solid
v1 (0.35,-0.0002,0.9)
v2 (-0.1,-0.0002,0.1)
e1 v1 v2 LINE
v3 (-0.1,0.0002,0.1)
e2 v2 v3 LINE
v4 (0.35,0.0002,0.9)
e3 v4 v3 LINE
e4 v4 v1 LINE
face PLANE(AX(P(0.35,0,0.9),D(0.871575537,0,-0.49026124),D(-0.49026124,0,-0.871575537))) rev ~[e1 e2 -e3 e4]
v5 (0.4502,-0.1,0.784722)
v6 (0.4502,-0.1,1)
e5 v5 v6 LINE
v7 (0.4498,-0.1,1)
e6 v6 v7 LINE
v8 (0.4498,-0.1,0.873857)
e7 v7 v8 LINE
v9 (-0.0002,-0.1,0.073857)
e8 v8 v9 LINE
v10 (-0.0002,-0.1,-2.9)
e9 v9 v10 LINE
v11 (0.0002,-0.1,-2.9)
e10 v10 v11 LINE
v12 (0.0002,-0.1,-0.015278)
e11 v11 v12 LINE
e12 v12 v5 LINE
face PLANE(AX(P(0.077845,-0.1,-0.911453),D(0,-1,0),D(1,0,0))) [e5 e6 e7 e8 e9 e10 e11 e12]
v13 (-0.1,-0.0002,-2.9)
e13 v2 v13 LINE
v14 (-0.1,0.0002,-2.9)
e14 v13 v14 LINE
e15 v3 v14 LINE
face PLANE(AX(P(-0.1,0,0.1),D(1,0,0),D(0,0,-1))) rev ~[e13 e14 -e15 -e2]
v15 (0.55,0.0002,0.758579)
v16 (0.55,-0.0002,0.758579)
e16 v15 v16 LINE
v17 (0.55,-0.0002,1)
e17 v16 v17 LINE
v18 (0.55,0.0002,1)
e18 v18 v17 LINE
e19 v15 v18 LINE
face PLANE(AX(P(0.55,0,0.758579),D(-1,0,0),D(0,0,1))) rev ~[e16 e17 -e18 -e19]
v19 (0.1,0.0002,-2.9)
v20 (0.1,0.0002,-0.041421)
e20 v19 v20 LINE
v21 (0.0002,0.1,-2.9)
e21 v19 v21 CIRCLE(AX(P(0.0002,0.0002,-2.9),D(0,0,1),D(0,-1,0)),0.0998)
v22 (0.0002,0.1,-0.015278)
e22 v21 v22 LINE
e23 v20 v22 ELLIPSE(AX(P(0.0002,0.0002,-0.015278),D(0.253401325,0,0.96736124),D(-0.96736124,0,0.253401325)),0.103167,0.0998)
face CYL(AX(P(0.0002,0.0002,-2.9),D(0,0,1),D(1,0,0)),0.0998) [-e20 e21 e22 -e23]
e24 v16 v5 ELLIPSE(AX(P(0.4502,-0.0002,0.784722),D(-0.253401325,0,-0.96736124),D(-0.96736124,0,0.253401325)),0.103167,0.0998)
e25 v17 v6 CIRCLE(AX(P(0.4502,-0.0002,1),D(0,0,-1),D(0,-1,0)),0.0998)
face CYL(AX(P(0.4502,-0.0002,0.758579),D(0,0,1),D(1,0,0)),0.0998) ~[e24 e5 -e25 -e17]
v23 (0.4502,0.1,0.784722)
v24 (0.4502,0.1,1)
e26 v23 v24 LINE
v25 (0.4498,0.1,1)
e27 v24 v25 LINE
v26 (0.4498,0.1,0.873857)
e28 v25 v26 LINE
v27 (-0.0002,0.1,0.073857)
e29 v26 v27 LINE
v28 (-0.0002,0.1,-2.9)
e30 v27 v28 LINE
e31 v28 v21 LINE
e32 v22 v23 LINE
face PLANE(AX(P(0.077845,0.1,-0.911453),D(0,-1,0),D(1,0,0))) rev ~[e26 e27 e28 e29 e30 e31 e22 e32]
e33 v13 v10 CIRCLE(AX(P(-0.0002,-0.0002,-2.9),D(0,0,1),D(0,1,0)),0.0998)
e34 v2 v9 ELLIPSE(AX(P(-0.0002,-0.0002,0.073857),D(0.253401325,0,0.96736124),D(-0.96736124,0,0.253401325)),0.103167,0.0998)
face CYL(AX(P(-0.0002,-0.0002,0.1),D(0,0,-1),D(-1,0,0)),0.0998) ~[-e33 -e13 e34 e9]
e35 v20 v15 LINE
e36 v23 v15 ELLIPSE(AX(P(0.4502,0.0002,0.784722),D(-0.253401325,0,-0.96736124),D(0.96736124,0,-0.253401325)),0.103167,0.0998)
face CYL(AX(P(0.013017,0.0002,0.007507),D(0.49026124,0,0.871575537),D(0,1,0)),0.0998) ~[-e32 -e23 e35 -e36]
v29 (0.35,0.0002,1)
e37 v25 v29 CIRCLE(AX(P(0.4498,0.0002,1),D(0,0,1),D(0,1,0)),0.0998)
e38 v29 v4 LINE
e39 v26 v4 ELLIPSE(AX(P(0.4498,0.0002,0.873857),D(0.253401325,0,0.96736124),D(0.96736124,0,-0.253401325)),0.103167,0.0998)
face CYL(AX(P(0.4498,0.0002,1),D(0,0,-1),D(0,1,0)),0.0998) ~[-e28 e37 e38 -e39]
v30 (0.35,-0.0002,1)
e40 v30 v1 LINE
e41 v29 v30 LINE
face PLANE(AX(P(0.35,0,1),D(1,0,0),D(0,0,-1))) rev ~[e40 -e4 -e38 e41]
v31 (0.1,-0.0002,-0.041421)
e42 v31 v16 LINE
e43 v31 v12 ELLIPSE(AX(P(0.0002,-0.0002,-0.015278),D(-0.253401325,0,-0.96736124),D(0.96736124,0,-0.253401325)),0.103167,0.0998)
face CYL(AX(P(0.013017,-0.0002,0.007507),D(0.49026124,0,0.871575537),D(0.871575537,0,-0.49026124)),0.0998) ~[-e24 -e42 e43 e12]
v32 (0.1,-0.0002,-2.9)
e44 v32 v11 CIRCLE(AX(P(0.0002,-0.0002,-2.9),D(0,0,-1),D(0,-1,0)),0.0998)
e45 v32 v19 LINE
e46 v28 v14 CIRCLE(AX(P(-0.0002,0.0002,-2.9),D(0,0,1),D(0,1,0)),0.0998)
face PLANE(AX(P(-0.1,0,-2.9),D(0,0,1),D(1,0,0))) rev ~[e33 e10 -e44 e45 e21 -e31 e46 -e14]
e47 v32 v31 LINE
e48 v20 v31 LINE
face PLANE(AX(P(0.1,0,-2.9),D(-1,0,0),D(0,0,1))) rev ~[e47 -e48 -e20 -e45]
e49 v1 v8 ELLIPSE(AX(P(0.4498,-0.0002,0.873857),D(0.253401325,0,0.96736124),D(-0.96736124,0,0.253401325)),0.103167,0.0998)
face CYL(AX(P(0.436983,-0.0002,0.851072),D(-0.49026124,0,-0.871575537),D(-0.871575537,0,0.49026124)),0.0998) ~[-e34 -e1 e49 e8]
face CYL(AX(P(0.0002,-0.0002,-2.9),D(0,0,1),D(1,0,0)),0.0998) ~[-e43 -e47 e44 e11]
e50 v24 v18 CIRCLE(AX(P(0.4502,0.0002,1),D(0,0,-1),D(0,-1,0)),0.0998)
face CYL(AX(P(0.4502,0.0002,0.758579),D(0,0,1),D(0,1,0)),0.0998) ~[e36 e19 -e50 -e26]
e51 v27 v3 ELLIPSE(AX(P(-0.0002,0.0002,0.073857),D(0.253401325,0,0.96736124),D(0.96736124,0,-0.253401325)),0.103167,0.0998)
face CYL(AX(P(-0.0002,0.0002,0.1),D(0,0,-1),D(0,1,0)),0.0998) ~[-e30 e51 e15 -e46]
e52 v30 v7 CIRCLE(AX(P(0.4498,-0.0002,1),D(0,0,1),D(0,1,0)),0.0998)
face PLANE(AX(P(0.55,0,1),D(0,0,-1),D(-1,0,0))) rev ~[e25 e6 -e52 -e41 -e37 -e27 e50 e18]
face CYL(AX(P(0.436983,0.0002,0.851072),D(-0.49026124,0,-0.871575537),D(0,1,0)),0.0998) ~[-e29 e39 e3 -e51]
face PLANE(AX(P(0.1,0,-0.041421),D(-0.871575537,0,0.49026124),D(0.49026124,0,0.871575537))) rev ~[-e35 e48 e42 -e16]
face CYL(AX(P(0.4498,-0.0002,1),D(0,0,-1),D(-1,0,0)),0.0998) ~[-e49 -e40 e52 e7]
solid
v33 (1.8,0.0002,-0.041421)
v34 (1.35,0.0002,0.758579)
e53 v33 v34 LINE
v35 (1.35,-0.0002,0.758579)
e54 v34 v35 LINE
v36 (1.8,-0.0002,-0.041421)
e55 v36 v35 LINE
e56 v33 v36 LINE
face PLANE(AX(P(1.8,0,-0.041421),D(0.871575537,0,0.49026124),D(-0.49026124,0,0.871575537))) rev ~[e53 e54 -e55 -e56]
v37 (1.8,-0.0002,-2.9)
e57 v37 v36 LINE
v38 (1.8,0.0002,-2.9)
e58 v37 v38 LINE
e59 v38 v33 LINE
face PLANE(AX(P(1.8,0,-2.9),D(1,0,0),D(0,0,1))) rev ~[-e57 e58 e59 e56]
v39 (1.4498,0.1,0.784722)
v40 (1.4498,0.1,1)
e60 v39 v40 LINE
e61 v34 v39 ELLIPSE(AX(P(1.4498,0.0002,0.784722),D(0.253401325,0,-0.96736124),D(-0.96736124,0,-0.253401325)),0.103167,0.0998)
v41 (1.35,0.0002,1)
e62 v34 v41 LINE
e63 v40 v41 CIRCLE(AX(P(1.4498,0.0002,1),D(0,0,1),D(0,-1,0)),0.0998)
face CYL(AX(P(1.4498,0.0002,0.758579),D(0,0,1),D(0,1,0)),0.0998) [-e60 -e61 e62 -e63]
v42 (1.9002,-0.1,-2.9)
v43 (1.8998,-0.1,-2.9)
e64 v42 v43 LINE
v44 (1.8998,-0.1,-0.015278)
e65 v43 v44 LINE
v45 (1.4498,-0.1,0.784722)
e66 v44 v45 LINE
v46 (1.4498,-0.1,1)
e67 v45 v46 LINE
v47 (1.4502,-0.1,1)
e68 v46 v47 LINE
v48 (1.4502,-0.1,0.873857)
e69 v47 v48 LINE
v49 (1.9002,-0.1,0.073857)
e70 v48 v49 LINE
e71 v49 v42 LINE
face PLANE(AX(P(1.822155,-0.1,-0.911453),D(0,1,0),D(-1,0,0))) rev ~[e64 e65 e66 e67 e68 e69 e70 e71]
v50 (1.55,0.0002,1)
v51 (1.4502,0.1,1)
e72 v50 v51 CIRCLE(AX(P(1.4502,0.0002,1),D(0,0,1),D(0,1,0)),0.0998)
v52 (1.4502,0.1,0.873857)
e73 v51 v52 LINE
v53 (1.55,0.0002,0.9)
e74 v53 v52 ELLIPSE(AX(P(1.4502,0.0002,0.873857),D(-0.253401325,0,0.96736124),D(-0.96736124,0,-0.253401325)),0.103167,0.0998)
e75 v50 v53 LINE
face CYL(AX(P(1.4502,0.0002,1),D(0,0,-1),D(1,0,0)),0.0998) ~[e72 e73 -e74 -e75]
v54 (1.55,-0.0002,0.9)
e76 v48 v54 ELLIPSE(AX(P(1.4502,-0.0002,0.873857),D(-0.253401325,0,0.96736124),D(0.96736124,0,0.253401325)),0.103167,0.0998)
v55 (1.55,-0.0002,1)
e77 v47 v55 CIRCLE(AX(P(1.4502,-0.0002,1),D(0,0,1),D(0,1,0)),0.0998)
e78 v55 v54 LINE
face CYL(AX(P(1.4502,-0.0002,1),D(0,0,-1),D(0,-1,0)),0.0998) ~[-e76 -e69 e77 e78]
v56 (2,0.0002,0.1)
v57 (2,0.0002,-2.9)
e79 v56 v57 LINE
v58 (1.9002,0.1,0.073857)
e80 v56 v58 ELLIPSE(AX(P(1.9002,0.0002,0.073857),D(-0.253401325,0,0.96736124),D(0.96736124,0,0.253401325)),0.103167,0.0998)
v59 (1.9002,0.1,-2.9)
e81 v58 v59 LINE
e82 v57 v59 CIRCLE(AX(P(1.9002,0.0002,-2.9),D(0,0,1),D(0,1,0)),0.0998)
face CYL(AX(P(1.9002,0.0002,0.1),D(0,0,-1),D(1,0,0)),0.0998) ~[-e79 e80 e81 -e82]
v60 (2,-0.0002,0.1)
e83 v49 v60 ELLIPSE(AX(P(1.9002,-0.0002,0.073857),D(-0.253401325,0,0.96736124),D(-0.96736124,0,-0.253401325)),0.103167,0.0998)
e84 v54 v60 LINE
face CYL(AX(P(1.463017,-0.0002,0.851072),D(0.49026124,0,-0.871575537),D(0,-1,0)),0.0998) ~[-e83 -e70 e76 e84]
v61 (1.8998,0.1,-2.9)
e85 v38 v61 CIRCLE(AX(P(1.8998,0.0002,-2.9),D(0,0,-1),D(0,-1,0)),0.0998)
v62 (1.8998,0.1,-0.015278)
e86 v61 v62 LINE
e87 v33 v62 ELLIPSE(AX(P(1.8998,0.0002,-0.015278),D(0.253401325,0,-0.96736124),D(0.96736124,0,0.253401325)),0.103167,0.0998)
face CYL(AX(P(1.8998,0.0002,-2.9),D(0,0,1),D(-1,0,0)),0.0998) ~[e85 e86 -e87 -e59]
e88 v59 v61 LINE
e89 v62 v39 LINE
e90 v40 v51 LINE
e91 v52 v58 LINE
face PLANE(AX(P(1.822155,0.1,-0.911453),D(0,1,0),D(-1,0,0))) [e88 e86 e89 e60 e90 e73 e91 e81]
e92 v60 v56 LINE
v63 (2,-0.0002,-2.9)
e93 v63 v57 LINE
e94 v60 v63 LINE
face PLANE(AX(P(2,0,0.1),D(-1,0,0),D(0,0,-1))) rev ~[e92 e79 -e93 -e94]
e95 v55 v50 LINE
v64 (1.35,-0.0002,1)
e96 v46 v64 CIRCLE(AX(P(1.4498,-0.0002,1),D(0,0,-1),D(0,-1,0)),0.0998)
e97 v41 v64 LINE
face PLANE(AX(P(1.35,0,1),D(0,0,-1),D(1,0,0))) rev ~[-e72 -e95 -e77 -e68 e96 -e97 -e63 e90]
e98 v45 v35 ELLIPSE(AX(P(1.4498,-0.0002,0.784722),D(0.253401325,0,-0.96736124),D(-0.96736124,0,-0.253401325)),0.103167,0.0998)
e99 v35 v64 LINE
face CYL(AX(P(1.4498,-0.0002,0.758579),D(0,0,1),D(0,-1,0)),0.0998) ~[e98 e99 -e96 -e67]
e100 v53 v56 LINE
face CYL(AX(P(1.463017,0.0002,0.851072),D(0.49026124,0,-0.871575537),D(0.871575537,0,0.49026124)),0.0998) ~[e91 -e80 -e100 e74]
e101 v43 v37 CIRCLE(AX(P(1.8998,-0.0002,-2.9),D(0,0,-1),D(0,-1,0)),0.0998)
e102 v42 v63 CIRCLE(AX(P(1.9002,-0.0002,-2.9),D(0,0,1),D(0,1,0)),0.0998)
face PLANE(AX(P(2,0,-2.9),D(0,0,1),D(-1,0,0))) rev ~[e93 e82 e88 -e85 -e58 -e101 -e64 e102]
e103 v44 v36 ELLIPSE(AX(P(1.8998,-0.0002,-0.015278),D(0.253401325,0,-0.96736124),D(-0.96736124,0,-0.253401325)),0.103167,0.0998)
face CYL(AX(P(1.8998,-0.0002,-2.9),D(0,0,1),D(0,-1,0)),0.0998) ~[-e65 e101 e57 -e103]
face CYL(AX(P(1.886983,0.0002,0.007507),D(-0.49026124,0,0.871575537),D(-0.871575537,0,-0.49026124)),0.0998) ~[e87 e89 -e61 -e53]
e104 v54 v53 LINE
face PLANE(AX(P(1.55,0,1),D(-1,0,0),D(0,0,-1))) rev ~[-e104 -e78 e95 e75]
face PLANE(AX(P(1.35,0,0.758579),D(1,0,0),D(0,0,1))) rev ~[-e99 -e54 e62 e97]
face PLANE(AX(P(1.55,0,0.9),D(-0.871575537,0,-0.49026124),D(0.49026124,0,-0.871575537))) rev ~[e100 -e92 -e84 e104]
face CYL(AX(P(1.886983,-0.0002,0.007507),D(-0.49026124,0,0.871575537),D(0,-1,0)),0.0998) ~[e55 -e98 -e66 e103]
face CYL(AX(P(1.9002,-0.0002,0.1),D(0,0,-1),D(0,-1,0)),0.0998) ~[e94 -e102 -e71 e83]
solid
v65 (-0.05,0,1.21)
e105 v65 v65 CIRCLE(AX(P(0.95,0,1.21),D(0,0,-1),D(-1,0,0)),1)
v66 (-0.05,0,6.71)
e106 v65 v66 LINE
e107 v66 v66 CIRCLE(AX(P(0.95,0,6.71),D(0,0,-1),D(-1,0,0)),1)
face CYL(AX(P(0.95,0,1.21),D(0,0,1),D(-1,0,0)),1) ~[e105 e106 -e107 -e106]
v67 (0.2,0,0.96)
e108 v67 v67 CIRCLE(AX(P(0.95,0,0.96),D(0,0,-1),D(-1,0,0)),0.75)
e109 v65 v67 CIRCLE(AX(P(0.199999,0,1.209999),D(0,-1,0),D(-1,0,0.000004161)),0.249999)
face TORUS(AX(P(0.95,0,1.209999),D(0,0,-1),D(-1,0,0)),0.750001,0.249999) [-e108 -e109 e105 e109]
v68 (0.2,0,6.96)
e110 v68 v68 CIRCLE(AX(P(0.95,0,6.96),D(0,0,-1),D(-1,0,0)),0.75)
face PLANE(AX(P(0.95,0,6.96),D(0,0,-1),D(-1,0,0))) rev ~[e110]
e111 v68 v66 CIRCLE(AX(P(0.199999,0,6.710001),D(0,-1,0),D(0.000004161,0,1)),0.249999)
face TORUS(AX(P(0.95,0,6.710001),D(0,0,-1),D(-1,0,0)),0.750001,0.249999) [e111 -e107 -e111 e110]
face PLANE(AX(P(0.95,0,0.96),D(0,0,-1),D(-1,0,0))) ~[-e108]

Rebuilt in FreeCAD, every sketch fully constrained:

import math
import FreeCAD as App
import Part
import Sketcher


def edges_at(feature, points):
    """Names of the edges that pass closest to the given points."""
    edges = feature.Shape.Edges
    near = lambda p: min(range(len(edges)), key=lambda i: edges[i].distToShape(Part.Vertex(*p))[0])
    return sorted({f"Edge{near(p) + 1}" for p in points})

doc = App.newDocument("Part")
body = doc.addObject("PartDesign::Body", "Body")

# Sketch on XZ plane
sketch1 = body.newObject("Sketcher::SketchObject", "Sketch")
sketch1.AttachmentSupport = (doc.getObject("XZ_Plane"), [""])
sketch1.MapMode = "FlatFace"
sketch1.addGeometry(Part.LineSegment(App.Vector(0.95, 6.96, 0), App.Vector(0.2, 6.96, 0)), False)
sketch1.addGeometry(Part.ArcOfCircle(Part.Circle(App.Vector(0.2, 6.71, 0), App.Vector(0, 0, 1), 0.25), math.radians(90), math.radians(180)), False)
sketch1.addGeometry(Part.LineSegment(App.Vector(-0.05, 6.71, 0), App.Vector(-0.05, 1.21, 0)), False)
sketch1.addGeometry(Part.ArcOfCircle(Part.Circle(App.Vector(0.2, 1.21, 0), App.Vector(0, 0, 1), 0.25), math.radians(180), math.radians(270)), False)
sketch1.addGeometry(Part.LineSegment(App.Vector(0.2, 0.96, 0), App.Vector(0.95, 0.96, 0)), False)
sketch1.addGeometry(Part.LineSegment(App.Vector(0.95, 0.96, 0), App.Vector(0.95, 6.96, 0)), False)
sketch1.addGeometry(Part.LineSegment(App.Vector(0.95, 6.96, 0), App.Vector(0.95, 0.96, 0)), True)  # axis
sketch1.addConstraint(Sketcher.Constraint("Coincident", 0, 2, 1, 1))
sketch1.addConstraint(Sketcher.Constraint("Coincident", 1, 2, 2, 1))
sketch1.addConstraint(Sketcher.Constraint("Coincident", 2, 2, 3, 1))
sketch1.addConstraint(Sketcher.Constraint("Coincident", 3, 2, 4, 1))
sketch1.addConstraint(Sketcher.Constraint("Coincident", 4, 2, 5, 1))
sketch1.addConstraint(Sketcher.Constraint("Coincident", 5, 2, 0, 1))
sketch1.addConstraint(Sketcher.Constraint("Horizontal", 0))
sketch1.addConstraint(Sketcher.Constraint("Vertical", 2))
sketch1.addConstraint(Sketcher.Constraint("Horizontal", 4))
sketch1.addConstraint(Sketcher.Constraint("Vertical", 5))
sketch1.addConstraint(Sketcher.Constraint("Vertical", 6))
sketch1.addConstraint(Sketcher.Constraint("Coincident", 6, 1, 5, 2))
sketch1.addConstraint(Sketcher.Constraint("Equal", 1, 3))
sketch1.addConstraint(Sketcher.Constraint("Horizontal", 3, 3, 2, 2))
sketch1.addConstraint(Sketcher.Constraint("Horizontal", 3, 2, 6, 2))
sketch1.addConstraint(Sketcher.Constraint("Vertical", 3, 3, 0, 2))
sketch1.addConstraint(Sketcher.Constraint("Vertical", 0, 2, 3, 2))
sketch1.addConstraint(Sketcher.Constraint("DistanceY", 5, 1, 5, 2, 6.0))
sketch1.addConstraint(Sketcher.Constraint("Radius", 1, 0.249999))
sketch1.addConstraint(Sketcher.Constraint("DistanceY", 2, 2, 2, 1, 5.5))
sketch1.addConstraint(Sketcher.Constraint("DistanceX", 2, 2, 4, 2, 1.0))
sketch1.addConstraint(Sketcher.Constraint("DistanceX", -1, 1, 1, 3, 0.199999))
sketch1.addConstraint(Sketcher.Constraint("DistanceY", -1, 1, 1, 3, 6.710001))
revolution = body.newObject("PartDesign::Revolution", "Revolution")
revolution.Profile = sketch1
revolution.ReferenceAxis = (sketch1, ["Axis0"])
revolution.Angle = 360
body2 = doc.addObject("PartDesign::Body", "Body001")
body2.AllowCompound = True

# Sketch on XZ plane
sketch2 = body2.newObject("Sketcher::SketchObject", "Sketch001")
sketch2.AttachmentSupport = (doc.getObject("XZ_Plane001"), [""])
sketch2.MapMode = "FlatFace"
sketch2.addGeometry(Part.LineSegment(App.Vector(0.1, -2.9, 0), App.Vector(0.1, -0.04, 0)), False)
sketch2.addGeometry(Part.LineSegment(App.Vector(0.1, -0.04, 0), App.Vector(0.55, 0.76, 0)), False)
sketch2.addGeometry(Part.LineSegment(App.Vector(0.55, 0.76, 0), App.Vector(0.55, 1, 0)), False)
sketch2.addGeometry(Part.LineSegment(App.Vector(0.55, 1, 0), App.Vector(0.35, 1, 0)), False)
sketch2.addGeometry(Part.LineSegment(App.Vector(0.35, 1, 0), App.Vector(0.35, 0.9, 0)), False)
sketch2.addGeometry(Part.LineSegment(App.Vector(0.35, 0.9, 0), App.Vector(-0.1, 0.1, 0)), False)
sketch2.addGeometry(Part.LineSegment(App.Vector(-0.1, 0.1, 0), App.Vector(-0.1, -2.9, 0)), False)
sketch2.addGeometry(Part.LineSegment(App.Vector(-0.1, -2.9, 0), App.Vector(0.1, -2.9, 0)), False)
sketch2.addGeometry(Part.LineSegment(App.Vector(1.55, 1, 0), App.Vector(1.35, 1, 0)), False)
sketch2.addGeometry(Part.LineSegment(App.Vector(1.35, 1, 0), App.Vector(1.35, 0.76, 0)), False)
sketch2.addGeometry(Part.LineSegment(App.Vector(1.35, 0.76, 0), App.Vector(1.8, -0.04, 0)), False)
sketch2.addGeometry(Part.LineSegment(App.Vector(1.8, -0.04, 0), App.Vector(1.8, -2.9, 0)), False)
sketch2.addGeometry(Part.LineSegment(App.Vector(1.8, -2.9, 0), App.Vector(2, -2.9, 0)), False)
sketch2.addGeometry(Part.LineSegment(App.Vector(2, -2.9, 0), App.Vector(2, 0.1, 0)), False)
sketch2.addGeometry(Part.LineSegment(App.Vector(2, 0.1, 0), App.Vector(1.55, 0.9, 0)), False)
sketch2.addGeometry(Part.LineSegment(App.Vector(1.55, 0.9, 0), App.Vector(1.55, 1, 0)), False)
sketch2.addConstraint(Sketcher.Constraint("Coincident", 0, 2, 1, 1))
sketch2.addConstraint(Sketcher.Constraint("Coincident", 1, 2, 2, 1))
sketch2.addConstraint(Sketcher.Constraint("Coincident", 2, 2, 3, 1))
sketch2.addConstraint(Sketcher.Constraint("Coincident", 3, 2, 4, 1))
sketch2.addConstraint(Sketcher.Constraint("Coincident", 4, 2, 5, 1))
sketch2.addConstraint(Sketcher.Constraint("Coincident", 5, 2, 6, 1))
sketch2.addConstraint(Sketcher.Constraint("Coincident", 6, 2, 7, 1))
sketch2.addConstraint(Sketcher.Constraint("Coincident", 7, 2, 0, 1))
sketch2.addConstraint(Sketcher.Constraint("Coincident", 8, 2, 9, 1))
sketch2.addConstraint(Sketcher.Constraint("Coincident", 9, 2, 10, 1))
sketch2.addConstraint(Sketcher.Constraint("Coincident", 10, 2, 11, 1))
sketch2.addConstraint(Sketcher.Constraint("Coincident", 11, 2, 12, 1))
sketch2.addConstraint(Sketcher.Constraint("Coincident", 12, 2, 13, 1))
sketch2.addConstraint(Sketcher.Constraint("Coincident", 13, 2, 14, 1))
sketch2.addConstraint(Sketcher.Constraint("Coincident", 14, 2, 15, 1))
sketch2.addConstraint(Sketcher.Constraint("Coincident", 15, 2, 8, 1))
sketch2.addConstraint(Sketcher.Constraint("Vertical", 0))
sketch2.addConstraint(Sketcher.Constraint("Vertical", 2))
sketch2.addConstraint(Sketcher.Constraint("Horizontal", 3))
sketch2.addConstraint(Sketcher.Constraint("Vertical", 4))
sketch2.addConstraint(Sketcher.Constraint("Vertical", 6))
sketch2.addConstraint(Sketcher.Constraint("Horizontal", 7))
sketch2.addConstraint(Sketcher.Constraint("Horizontal", 8))
sketch2.addConstraint(Sketcher.Constraint("Vertical", 9))
sketch2.addConstraint(Sketcher.Constraint("Vertical", 11))
sketch2.addConstraint(Sketcher.Constraint("Horizontal", 12))
sketch2.addConstraint(Sketcher.Constraint("Vertical", 13))
sketch2.addConstraint(Sketcher.Constraint("Vertical", 15))
sketch2.addConstraint(Sketcher.Constraint("Parallel", 1, 5))
sketch2.addConstraint(Sketcher.Constraint("Parallel", 10, 14))
sketch2.addConstraint(Sketcher.Constraint("Horizontal", 3, 2, 8, 2))
sketch2.addConstraint(Sketcher.Constraint("Horizontal", 1, 2, 9, 2))
sketch2.addConstraint(Sketcher.Constraint("Horizontal", 0, 2, 10, 2))
sketch2.addConstraint(Sketcher.Constraint("Horizontal", 7, 2, 11, 2))
sketch2.addConstraint(Sketcher.Constraint("Horizontal", 5, 2, 13, 2))
sketch2.addConstraint(Sketcher.Constraint("Horizontal", 4, 2, 14, 2))
sketch2.addConstraint(Sketcher.Constraint("Equal", 3, 7))
sketch2.addConstraint(Sketcher.Constraint("Equal", 7, 8))
sketch2.addConstraint(Sketcher.Constraint("Equal", 5, 10))
sketch2.addConstraint(Sketcher.Constraint("DistanceY", 6, 2, 6, 1, 3.0))
sketch2.addConstraint(Sketcher.Constraint("DistanceX", 3, 2, 3, 1, 0.2))
sketch2.addConstraint(Sketcher.Constraint("DistanceY", 4, 2, 4, 1, 0.1))
sketch2.addConstraint(Sketcher.Constraint("DistanceY", -1, 1, 2, 2, 1.0))
sketch2.addConstraint(Sketcher.Constraint("DistanceX", -1, 1, 12, 2, 2.0))
sketch2.addConstraint(Sketcher.Constraint("DistanceX", 3, 2, 8, 2, 1.0))
sketch2.addConstraint(Sketcher.Constraint("DistanceX", -1, 1, 0, 2, 0.1))
sketch2.addConstraint(Sketcher.Constraint("DistanceY", -1, 1, 5, 2, 0.1))
sketch2.addConstraint(Sketcher.Constraint("DistanceY", 0, 1, 0, 2, 2.858579))
pad1 = body2.newObject("PartDesign::Pad", "Pad")
pad1.Profile = sketch2
pad1.Length = 0.2
pad1.Midplane = True
doc.recompute()

fillet = body2.newObject("PartDesign::Fillet", "Fillet")
fillet.Base = (pad1, edges_at(pad1, [
    (0.125, -0.1, 0.5),
    (0.35, -0.1, 0.95),
    (0.55, -0.1, 0.879),
    (0.325, -0.1, 0.359),
    (0.1, -0.1, -1.471),
    (-0.1, -0.1, -1.4),
    (0.1, 0.1, -1.471),
    (0.325, 0.1, 0.359),
    (0.55, 0.1, 0.879),
    (1.575, -0.1, 0.359),
    (1.35, -0.1, 0.879),
    (1.8, -0.1, -1.471),
    (2, -0.1, -1.4),
    (1.775, -0.1, 0.5),
    (1.55, -0.1, 0.95),
    (1.55, 0.1, 0.95),
    (1.775, 0.1, 0.5),
    (2, 0.1, -1.4),
    (1.8, 0.1, -1.471),
    (1.575, 0.1, 0.359),
    (1.35, 0.1, 0.879),
    (0.35, 0.1, 0.95),
    (-0.1, 0.1, -1.4),
    (0.125, 0.1, 0.5),
]))
fillet.Radius = 0.0998

doc.recompute()
